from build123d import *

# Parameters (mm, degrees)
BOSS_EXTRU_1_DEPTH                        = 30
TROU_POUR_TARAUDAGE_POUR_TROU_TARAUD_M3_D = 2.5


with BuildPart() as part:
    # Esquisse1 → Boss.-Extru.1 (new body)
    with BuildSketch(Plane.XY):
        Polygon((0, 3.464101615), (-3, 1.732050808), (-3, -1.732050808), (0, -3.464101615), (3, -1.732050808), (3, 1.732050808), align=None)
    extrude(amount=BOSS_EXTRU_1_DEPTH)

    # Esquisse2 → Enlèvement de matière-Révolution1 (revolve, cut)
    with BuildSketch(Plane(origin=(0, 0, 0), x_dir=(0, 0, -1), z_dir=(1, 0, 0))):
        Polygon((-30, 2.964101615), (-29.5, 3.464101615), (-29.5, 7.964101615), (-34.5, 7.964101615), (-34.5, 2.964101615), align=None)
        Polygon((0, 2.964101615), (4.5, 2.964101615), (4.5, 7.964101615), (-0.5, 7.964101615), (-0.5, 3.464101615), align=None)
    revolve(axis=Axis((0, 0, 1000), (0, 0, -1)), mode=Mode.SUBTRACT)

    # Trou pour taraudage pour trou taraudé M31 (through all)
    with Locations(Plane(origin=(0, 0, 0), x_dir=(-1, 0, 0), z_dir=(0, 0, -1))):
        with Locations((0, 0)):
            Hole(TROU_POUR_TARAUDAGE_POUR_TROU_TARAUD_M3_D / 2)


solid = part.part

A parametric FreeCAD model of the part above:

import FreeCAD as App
import Part
import Sketcher

V = App.Vector
Q = App.Units.Quantity

doc = App.newDocument("Part")
body = doc.addObject("PartDesign::Body", "Body")

sketch1 = body.newObject("Sketcher::SketchObject", "Sketch")
sketch1.AttachmentSupport = (doc.getObject("XY_Plane"), [""])
sketch1.MapMode = "FlatFace"
sketch1.addGeometry([
    Part.LineSegment(V(0, 3.464102, 0), V(-3, 1.732051, 0)),
    Part.LineSegment(V(-3, 1.732051, 0), V(-3, -1.732051, 0)),
    Part.LineSegment(V(-3, -1.732051, 0), V(0, -3.464102, 0)),
    Part.LineSegment(V(0, -3.464102, 0), V(3, -1.732051, 0)),
    Part.LineSegment(V(3, -1.732051, 0), V(3, 1.732051, 0)),
    Part.LineSegment(V(3, 1.732051, 0), V(0, 3.464102, 0)),
], False)
sketch1.addConstraint([
    Sketcher.Constraint("Coincident", 0, 2, 1, 1),
    Sketcher.Constraint("Coincident", 1, 2, 2, 1),
    Sketcher.Constraint("Coincident", 2, 2, 3, 1),
    Sketcher.Constraint("Coincident", 3, 2, 4, 1),
    Sketcher.Constraint("Coincident", 4, 2, 5, 1),
    Sketcher.Constraint("Coincident", 5, 2, 0, 1),
    Sketcher.Constraint("Vertical", 1),
    Sketcher.Constraint("Vertical", 4),
    Sketcher.Constraint("Symmetric", 0, 2, 3, 2, -1, 1),
    Sketcher.Constraint("Symmetric", 2, 2, 5, 2, -1, 1),
    Sketcher.Constraint("PointOnObject", 2, 2, -2),
    Sketcher.Constraint("Parallel", 2, 5),
    Sketcher.Constraint("Horizontal", 1, 2, 3, 2),
    Sketcher.Constraint("Angle", 0, Q("-150 deg")),
    Sketcher.Constraint("DistanceX", 0, 2, -1, 1, Q("3 mm")),
    Sketcher.Constraint("DistanceY", 1, 2, 1, 1, Q("3.464102 mm")),
])
pad1 = body.newObject("PartDesign::Pad", "Pad")
pad1.Profile = sketch1
pad1.Length = 30

sketch2 = body.newObject("Sketcher::SketchObject", "Sketch001")
sketch2.AttachmentSupport = (doc.getObject("YZ_Plane"), [""])
sketch2.MapMode = "FlatFace"
sketch2.addGeometry([
    Part.LineSegment(V(2.964102, 30, 0), V(3.464102, 29.5, 0)),
    Part.LineSegment(V(3.464102, 29.5, 0), V(7.964102, 29.5, 0)),
    Part.LineSegment(V(7.964102, 29.5, 0), V(7.964102, 34.5, 0)),
    Part.LineSegment(V(7.964102, 34.5, 0), V(2.964102, 34.5, 0)),
    Part.LineSegment(V(2.964102, 34.5, 0), V(2.964102, 30, 0)),
    Part.LineSegment(V(2.964102, 0, 0), V(2.964102, -4.5, 0)),
    Part.LineSegment(V(2.964102, -4.5, 0), V(7.964102, -4.5, 0)),
    Part.LineSegment(V(7.964102, -4.5, 0), V(7.964102, 0.5, 0)),
    Part.LineSegment(V(7.964102, 0.5, 0), V(3.464102, 0.5, 0)),
    Part.LineSegment(V(3.464102, 0.5, 0), V(2.964102, 0, 0)),
], False)
sketch2.addConstraint([
    Sketcher.Constraint("Coincident", 0, 2, 1, 1),
    Sketcher.Constraint("Coincident", 1, 2, 2, 1),
    Sketcher.Constraint("Coincident", 2, 2, 3, 1),
    Sketcher.Constraint("Coincident", 3, 2, 4, 1),
    Sketcher.Constraint("Coincident", 4, 2, 0, 1),
    Sketcher.Constraint("Coincident", 5, 2, 6, 1),
    Sketcher.Constraint("Coincident", 6, 2, 7, 1),
    Sketcher.Constraint("Coincident", 7, 2, 8, 1),
    Sketcher.Constraint("Coincident", 8, 2, 9, 1),
    Sketcher.Constraint("Coincident", 9, 2, 5, 1),
    Sketcher.Constraint("Horizontal", 1),
    Sketcher.Constraint("Vertical", 2),
    Sketcher.Constraint("Horizontal", 3),
    Sketcher.Constraint("Vertical", 4),
    Sketcher.Constraint("Vertical", 5),
    Sketcher.Constraint("Horizontal", 6),
    Sketcher.Constraint("Vertical", 7),
    Sketcher.Constraint("Horizontal", 8),
    Sketcher.Constraint("PointOnObject", 9, 2, -1),
    Sketcher.Constraint("Perpendicular", 0, 9),
    Sketcher.Constraint("Vertical", 4, 2, 5, 2),
    Sketcher.Constraint("Vertical", 2, 2, 6, 2),
    Sketcher.Constraint("Vertical", 0, 2, 8, 2),
    Sketcher.Constraint("Equal", 6, 2),
    Sketcher.Constraint("Equal", 8, 4),
    Sketcher.Constraint("Equal", 4, 5),
    Sketcher.Constraint("DistanceX", 3, 2, 3, 1, Q("5 mm")),
    Sketcher.Constraint("DistanceX", 1, 1, 1, 2, Q("4.5 mm")),
    Sketcher.Constraint("DistanceY", -1, 1, 4, 2, Q("30 mm")),
    Sketcher.Constraint("DistanceX", -1, 1, 0, 2, Q("3.464102 mm")),
])
groove = body.newObject("PartDesign::Groove", "Groove")
groove.Profile = sketch2
groove.ReferenceAxis = (sketch2, ["V_Axis"])
groove.Angle = 360

sketch3 = body.newObject("Sketcher::SketchObject", "Sketch002")
sketch3.AttachmentSupport = (doc.getObject("XY_Plane"), [""])
sketch3.MapMode = "FlatFace"
sketch3.addGeometry(Part.Circle(V(0, 0, 0), V(0, 0, 1), 1.25), False)
sketch3.addConstraint([
    Sketcher.Constraint("Coincident", 0, 3, -1, 1),
    Sketcher.Constraint("Diameter", 0, Q("2.5 mm")),
])
doc.recompute()
hole = body.newObject("PartDesign::Hole", "Hole")
hole.Profile = sketch3
hole.ThreadType = "None"
hole.Diameter = 2.5
hole.DepthType = "ThroughAll"
hole.Reversed = True

doc.recompute()
